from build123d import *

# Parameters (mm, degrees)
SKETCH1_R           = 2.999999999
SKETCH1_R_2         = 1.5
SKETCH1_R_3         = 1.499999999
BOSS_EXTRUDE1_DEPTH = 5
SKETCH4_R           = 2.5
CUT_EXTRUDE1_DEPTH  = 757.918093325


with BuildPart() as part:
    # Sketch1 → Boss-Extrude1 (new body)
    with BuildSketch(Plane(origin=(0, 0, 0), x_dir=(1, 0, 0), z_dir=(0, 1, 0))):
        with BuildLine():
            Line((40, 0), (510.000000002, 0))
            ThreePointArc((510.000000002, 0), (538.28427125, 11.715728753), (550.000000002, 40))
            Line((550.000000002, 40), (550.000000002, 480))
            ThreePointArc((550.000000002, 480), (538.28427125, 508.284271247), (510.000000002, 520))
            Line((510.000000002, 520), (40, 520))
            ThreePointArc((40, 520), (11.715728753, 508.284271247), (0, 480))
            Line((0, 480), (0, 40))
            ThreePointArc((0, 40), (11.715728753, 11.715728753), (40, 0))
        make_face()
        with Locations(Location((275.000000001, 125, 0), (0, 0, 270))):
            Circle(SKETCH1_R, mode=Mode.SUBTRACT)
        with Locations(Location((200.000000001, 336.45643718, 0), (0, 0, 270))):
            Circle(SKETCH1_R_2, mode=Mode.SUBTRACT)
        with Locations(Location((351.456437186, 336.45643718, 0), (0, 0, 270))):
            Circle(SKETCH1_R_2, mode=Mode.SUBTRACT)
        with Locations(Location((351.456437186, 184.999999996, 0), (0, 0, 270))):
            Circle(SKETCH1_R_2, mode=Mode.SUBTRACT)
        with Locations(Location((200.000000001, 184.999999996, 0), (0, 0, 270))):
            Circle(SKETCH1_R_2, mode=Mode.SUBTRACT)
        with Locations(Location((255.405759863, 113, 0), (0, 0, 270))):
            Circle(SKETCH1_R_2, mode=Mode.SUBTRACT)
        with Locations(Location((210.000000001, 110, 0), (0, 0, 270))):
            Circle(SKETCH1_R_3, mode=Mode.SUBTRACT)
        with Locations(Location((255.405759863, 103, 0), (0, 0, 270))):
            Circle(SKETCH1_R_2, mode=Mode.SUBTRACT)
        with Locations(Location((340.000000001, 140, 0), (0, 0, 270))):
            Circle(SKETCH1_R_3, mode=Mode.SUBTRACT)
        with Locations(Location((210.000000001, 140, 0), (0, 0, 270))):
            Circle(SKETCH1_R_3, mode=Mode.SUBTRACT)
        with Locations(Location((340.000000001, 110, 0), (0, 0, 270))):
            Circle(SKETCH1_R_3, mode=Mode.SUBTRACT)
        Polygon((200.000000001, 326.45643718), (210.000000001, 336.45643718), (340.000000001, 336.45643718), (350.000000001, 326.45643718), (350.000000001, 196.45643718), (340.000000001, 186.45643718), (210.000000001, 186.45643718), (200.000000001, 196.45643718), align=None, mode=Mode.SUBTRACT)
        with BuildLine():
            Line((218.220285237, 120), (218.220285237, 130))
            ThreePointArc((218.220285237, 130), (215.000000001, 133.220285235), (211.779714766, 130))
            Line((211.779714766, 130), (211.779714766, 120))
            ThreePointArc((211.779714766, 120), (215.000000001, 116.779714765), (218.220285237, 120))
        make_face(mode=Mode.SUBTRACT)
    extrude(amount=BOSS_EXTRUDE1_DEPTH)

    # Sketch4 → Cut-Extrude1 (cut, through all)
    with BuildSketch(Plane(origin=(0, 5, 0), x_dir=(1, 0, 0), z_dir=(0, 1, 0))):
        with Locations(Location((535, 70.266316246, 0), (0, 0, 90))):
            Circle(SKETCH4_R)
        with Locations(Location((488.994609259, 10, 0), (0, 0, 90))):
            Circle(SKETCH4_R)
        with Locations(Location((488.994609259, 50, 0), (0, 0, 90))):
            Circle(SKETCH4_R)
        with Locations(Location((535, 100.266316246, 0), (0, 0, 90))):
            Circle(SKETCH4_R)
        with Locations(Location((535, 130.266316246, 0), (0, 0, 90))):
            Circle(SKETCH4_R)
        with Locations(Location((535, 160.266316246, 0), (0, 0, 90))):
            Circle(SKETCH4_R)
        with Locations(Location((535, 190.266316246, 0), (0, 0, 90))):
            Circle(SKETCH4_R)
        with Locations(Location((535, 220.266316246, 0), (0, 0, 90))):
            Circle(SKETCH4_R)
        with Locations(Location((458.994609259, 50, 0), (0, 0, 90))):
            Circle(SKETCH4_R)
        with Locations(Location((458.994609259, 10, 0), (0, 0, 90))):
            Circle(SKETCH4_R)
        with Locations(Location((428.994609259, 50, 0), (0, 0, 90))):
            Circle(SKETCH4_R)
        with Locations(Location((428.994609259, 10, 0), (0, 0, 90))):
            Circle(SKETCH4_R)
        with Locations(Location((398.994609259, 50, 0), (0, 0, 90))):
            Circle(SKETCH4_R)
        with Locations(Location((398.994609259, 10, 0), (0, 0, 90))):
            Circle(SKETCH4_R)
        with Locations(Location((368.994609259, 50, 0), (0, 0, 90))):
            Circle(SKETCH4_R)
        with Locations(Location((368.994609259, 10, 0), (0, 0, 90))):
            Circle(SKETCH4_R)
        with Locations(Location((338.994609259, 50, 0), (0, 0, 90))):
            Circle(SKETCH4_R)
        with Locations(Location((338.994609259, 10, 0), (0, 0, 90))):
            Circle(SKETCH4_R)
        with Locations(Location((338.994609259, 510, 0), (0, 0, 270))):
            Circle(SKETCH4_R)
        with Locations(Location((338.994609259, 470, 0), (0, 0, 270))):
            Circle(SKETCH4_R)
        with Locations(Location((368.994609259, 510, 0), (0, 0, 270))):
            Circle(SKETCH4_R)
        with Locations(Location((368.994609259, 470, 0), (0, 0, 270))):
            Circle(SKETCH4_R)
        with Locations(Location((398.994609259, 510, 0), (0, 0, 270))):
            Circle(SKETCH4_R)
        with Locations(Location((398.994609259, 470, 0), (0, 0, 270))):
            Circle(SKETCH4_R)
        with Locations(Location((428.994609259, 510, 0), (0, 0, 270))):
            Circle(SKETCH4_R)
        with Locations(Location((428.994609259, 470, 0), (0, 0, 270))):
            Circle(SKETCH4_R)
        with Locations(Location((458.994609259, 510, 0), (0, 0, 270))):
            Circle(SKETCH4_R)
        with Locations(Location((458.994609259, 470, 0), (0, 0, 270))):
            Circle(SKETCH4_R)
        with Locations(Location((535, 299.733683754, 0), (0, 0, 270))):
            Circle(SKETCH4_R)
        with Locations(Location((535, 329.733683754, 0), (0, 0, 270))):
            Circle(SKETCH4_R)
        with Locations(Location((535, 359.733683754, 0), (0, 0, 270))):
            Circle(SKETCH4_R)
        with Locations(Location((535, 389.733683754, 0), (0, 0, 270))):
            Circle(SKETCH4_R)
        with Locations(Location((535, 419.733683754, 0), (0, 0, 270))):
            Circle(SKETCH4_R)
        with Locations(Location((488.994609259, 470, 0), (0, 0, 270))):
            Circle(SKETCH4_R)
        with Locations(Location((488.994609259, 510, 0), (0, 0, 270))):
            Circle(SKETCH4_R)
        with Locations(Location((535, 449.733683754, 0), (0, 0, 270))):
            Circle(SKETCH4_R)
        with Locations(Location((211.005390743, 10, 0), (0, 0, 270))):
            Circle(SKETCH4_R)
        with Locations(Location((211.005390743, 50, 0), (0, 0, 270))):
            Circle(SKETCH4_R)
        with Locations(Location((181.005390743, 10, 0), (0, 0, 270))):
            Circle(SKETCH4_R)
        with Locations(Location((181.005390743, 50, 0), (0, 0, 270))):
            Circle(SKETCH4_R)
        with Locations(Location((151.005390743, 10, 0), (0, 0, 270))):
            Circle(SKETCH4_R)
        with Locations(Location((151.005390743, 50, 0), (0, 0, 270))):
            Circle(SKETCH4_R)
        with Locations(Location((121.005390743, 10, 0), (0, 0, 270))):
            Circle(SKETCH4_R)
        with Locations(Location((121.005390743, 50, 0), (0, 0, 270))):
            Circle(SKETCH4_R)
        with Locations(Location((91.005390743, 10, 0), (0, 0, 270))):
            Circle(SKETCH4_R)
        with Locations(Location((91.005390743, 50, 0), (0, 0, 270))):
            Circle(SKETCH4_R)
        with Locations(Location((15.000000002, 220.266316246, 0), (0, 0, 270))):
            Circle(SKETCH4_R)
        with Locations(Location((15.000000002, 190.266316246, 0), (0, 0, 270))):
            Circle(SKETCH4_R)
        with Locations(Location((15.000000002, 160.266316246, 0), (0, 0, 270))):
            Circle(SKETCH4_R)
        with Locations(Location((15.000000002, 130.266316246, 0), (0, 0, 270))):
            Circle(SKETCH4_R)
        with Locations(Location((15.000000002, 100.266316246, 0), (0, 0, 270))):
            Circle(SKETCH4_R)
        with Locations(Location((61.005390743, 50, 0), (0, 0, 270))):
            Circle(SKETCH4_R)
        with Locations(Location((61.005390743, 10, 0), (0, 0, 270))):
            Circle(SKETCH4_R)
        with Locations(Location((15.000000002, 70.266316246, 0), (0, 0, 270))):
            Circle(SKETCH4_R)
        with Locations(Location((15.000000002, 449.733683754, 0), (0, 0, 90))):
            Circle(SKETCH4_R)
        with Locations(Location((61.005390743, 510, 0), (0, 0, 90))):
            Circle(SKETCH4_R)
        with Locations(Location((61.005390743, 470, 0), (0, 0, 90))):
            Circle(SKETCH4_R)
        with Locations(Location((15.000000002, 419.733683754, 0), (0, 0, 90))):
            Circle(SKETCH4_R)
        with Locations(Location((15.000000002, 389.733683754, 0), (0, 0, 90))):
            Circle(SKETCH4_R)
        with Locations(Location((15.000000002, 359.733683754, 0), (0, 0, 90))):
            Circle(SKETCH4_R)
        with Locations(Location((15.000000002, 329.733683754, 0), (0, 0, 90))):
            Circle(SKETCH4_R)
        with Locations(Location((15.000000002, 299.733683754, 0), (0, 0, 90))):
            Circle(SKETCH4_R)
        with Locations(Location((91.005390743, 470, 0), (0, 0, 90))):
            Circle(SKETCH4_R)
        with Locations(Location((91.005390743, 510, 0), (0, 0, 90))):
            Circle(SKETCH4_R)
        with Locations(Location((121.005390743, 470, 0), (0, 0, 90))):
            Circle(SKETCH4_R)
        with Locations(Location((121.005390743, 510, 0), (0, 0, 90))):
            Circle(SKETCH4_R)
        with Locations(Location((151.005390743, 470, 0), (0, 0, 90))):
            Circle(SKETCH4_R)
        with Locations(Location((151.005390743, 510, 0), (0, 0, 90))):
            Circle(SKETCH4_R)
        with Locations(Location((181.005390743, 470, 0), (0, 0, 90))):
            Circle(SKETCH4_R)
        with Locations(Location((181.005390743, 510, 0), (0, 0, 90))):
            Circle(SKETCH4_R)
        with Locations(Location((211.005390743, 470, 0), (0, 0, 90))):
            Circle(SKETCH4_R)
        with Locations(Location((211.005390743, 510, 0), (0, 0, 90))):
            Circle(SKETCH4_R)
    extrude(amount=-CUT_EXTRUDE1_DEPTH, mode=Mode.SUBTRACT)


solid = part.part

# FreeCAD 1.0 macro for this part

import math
import FreeCAD as App
import Part
import Sketcher

V = App.Vector
Q = App.Units.Quantity


def add_polygon(sketch, points):
    """Adds a closed chain of lines whose ends are joined by coincident constraints."""
    first, n = sketch.GeometryCount, len(points)
    for a, b in zip(points, points[1:] + points[:1]):
        sketch.addGeometry(Part.LineSegment(App.Vector(*a, 0), App.Vector(*b, 0)), False)
    for i in range(n):
        sketch.addConstraint(Sketcher.Constraint("Coincident", first + i, 2, first + (i + 1) % n, 1))

doc = App.newDocument("Part")
body = doc.addObject("PartDesign::Body", "Body")

sketch1 = body.newObject("Sketcher::SketchObject", "Sketch")
sketch1.AttachmentSupport = (doc.getObject("XZ_Plane"), [""])
sketch1.MapMode = "FlatFace"
sketch1.addGeometry(Part.LineSegment(V(40, 0, 0), V(510, 0, 0)), False)
sketch1.addGeometry(Part.ArcOfCircle(Part.Circle(V(510, -40, 0), V(0, 0, 1), 40), math.radians(0), math.radians(90)), False)
sketch1.addGeometry(Part.LineSegment(V(550, -40, 0), V(550, -480, 0)), False)
sketch1.addGeometry(Part.ArcOfCircle(Part.Circle(V(510, -480, 0), V(0, 0, 1), 40), math.radians(-90), math.radians(0)), False)
sketch1.addGeometry(Part.LineSegment(V(510, -520, 0), V(40, -520, 0)), False)
sketch1.addGeometry(Part.ArcOfCircle(Part.Circle(V(40, -480, 0), V(0, 0, 1), 40), math.radians(-180), math.radians(-90)), False)
sketch1.addGeometry(Part.LineSegment(V(0, -480, 0), V(0, -40, 0)), False)
sketch1.addGeometry(Part.ArcOfCircle(Part.Circle(V(40, -40, 0), V(0, 0, 1), 40), math.radians(90), math.radians(180)), False)
sketch1.addGeometry(Part.Circle(V(210, -110, 0), V(0, 0, 1), 1.5), False)
sketch1.addGeometry(Part.LineSegment(V(218.2, -130, 0), V(218.2, -120, 0)), False)
sketch1.addGeometry(Part.ArcOfCircle(Part.Circle(V(215, -120, 0), V(0, 0, 1), 3.2), math.radians(0), math.radians(180)), False)
sketch1.addGeometry(Part.LineSegment(V(211.8, -120, 0), V(211.8, -130, 0)), False)
sketch1.addGeometry(Part.ArcOfCircle(Part.Circle(V(215, -130, 0), V(0, 0, 1), 3.2), math.radians(180), math.radians(360)), False)
sketch1.addGeometry(Part.Circle(V(210, -140, 0), V(0, 0, 1), 1.5), False)
sketch1.addGeometry(Part.Circle(V(255.4, -103, 0), V(0, 0, 1), 1.5), False)
sketch1.addGeometry(Part.Circle(V(255.4, -113, 0), V(0, 0, 1), 1.5), False)
sketch1.addGeometry(Part.Circle(V(275, -125, 0), V(0, 0, 1), 3), False)
sketch1.addGeometry(Part.Circle(V(200, -185, 0), V(0, 0, 1), 1.5), False)
sketch1.addGeometry(Part.Circle(V(340, -110, 0), V(0, 0, 1), 1.5), False)
sketch1.addGeometry(Part.Circle(V(340, -140, 0), V(0, 0, 1), 1.5), False)
sketch1.addGeometry(Part.Circle(V(351.5, -185, 0), V(0, 0, 1), 1.5), False)
add_polygon(sketch1, [(200, -196.5), (200, -326.5), (210, -336.5), (340, -336.5), (350, -326.5), (350, -196.5), (340, -186.5), (210, -186.5)])
sketch1.addGeometry(Part.Circle(V(200, -336.5, 0), V(0, 0, 1), 1.5), False)
sketch1.addGeometry(Part.Circle(V(351.5, -336.5, 0), V(0, 0, 1), 1.5), False)
sketch1.addConstraint([
    Sketcher.Constraint("Tangent", 0, 2, 1, 2),
    Sketcher.Constraint("Tangent", 1, 1, 2, 1),
    Sketcher.Constraint("Tangent", 2, 2, 3, 2),
    Sketcher.Constraint("Tangent", 3, 1, 4, 1),
    Sketcher.Constraint("Tangent", 4, 2, 5, 2),
    Sketcher.Constraint("Tangent", 5, 1, 6, 1),
    Sketcher.Constraint("Tangent", 6, 2, 7, 2),
    Sketcher.Constraint("Tangent", 7, 1, 0, 1),
    Sketcher.Constraint("Tangent", 9, 2, 10, 1),
    Sketcher.Constraint("Tangent", 10, 2, 11, 1),
    Sketcher.Constraint("Tangent", 11, 2, 12, 1),
    Sketcher.Constraint("Tangent", 12, 2, 9, 1),
    Sketcher.Constraint("Horizontal", 0),
    Sketcher.Constraint("Vertical", 2),
    Sketcher.Constraint("Horizontal", 4),
    Sketcher.Constraint("Vertical", 6),
    Sketcher.Constraint("Vertical", 9),
    Sketcher.Constraint("Vertical", 11),
    Sketcher.Constraint("Vertical", 21),
    Sketcher.Constraint("Horizontal", 23),
    Sketcher.Constraint("Vertical", 25),
    Sketcher.Constraint("Horizontal", 27),
    Sketcher.Constraint("Equal", 1, 3),
    Sketcher.Constraint("Equal", 3, 5),
    Sketcher.Constraint("Equal", 5, 7),
    Sketcher.Constraint("Equal", 8, 13),
    Sketcher.Constraint("Equal", 13, 14),
    Sketcher.Constraint("Equal", 14, 15),
    Sketcher.Constraint("Equal", 15, 17),
    Sketcher.Constraint("Equal", 17, 18),
    Sketcher.Constraint("Equal", 18, 19),
    Sketcher.Constraint("Equal", 19, 20),
    Sketcher.Constraint("Equal", 20, 29),
    Sketcher.Constraint("Equal", 29, 30),
    Sketcher.Constraint("PointOnObject", 0, 2, -1),
    Sketcher.Constraint("PointOnObject", 5, 1, -2),
    Sketcher.Constraint("Perpendicular", 22, 24),
    Sketcher.Constraint("Perpendicular", 24, 26),
    Sketcher.Constraint("Perpendicular", 26, 28),
    Sketcher.Constraint("Horizontal", 8, 3, 18, 3),
    Sketcher.Constraint("Horizontal", 13, 3, 19, 3),
    Sketcher.Constraint("Horizontal", 17, 3, 20, 3),
    Sketcher.Constraint("Horizontal", 29, 3, 30, 3),
    Sketcher.Constraint("Horizontal", 30, 3, 22, 2),
    Sketcher.Constraint("Horizontal", 21, 2, 24, 2),
    Sketcher.Constraint("Horizontal", 25, 2, 28, 2),
    Sketcher.Constraint("Vertical", 8, 3, 13, 3),
    Sketcher.Constraint("Vertical", 14, 3, 15, 3),
    Sketcher.Constraint("Vertical", 18, 3, 19, 3),
    Sketcher.Constraint("Vertical", 17, 3, 29, 3),
    Sketcher.Constraint("Vertical", 20, 3, 30, 3),
    Sketcher.Constraint("Vertical", 29, 3, 21, 2),
    Sketcher.Constraint("Vertical", 13, 3, 22, 2),
    Sketcher.Constraint("Vertical", 19, 3, 23, 2),
    Sketcher.Constraint("Vertical", 23, 2, 26, 2),
    Sketcher.Constraint("Vertical", 22, 2, 27, 2),
    Sketcher.Constraint("Equal", 27, 21),
    Sketcher.Constraint("Diameter", 8, Q("3 mm")),
    Sketcher.Constraint("Diameter", 16, Q("6 mm")),
    Sketcher.Constraint("Radius", 1, Q("40 mm")),
    Sketcher.Constraint("DistanceX", 0, 1, 0, 2, Q("470 mm")),
    Sketcher.Constraint("DistanceX", 23, 1, 23, 2, Q("130 mm")),
    Sketcher.Constraint("DistanceY", 2, 2, 2, 1, Q("440 mm")),
    Sketcher.Constraint("DistanceY", 9, 1, 9, 2, Q("10 mm")),
    Sketcher.Constraint("DistanceX", -1, 1, 8, 3, Q("210 mm")),
    Sketcher.Constraint("DistanceY", 8, 3, -1, 1, Q("110 mm")),
    Sketcher.Constraint("DistanceX", -1, 1, 10, 3, Q("215 mm")),
    Sketcher.Constraint("DistanceY", 10, 3, -1, 1, Q("120 mm")),
    Sketcher.Constraint("DistanceY", 13, 3, -1, 1, Q("140 mm")),
    Sketcher.Constraint("DistanceY", 14, 3, -1, 1, Q("103 mm")),
    Sketcher.Constraint("DistanceY", 15, 3, -1, 1, Q("113 mm")),
    Sketcher.Constraint("DistanceX", -1, 1, 16, 3, Q("275 mm")),
    Sketcher.Constraint("DistanceY", 16, 3, -1, 1, Q("125 mm")),
    Sketcher.Constraint("DistanceX", -1, 1, 17, 3, Q("200 mm")),
    Sketcher.Constraint("DistanceY", 17, 3, -1, 1, Q("185 mm")),
    Sketcher.Constraint("Radius", 10, Q("3.220285 mm")),
    Sketcher.Constraint("DistanceX", -1, 1, 14, 3, Q("255.40576 mm")),
    Sketcher.Constraint("DistanceX", -1, 1, 20, 3, Q("351.456437 mm")),
    Sketcher.Constraint("DistanceY", 29, 3, -1, 1, Q("336.456437 mm")),
])
pad1 = body.newObject("PartDesign::Pad", "Pad")
pad1.Profile = sketch1
pad1.Length = 5
pad1.Reversed = True

sketch2 = body.newObject("Sketcher::SketchObject", "Sketch001")
sketch2.AttachmentSupport = (doc.getObject("XZ_Plane"), [""])
sketch2.MapMode = "FlatFace"
sketch2.AttachmentOffset = App.Placement(V(0, 0, -5), App.Rotation())
sketch2.addGeometry([
    Part.Circle(V(535, -70.3, 0), V(0, 0, 1), 2.5),
    Part.Circle(V(489, -10, 0), V(0, 0, 1), 2.5),
    Part.Circle(V(489, -50, 0), V(0, 0, 1), 2.5),
    Part.Circle(V(535, -100.3, 0), V(0, 0, 1), 2.5),
    Part.Circle(V(535, -130.3, 0), V(0, 0, 1), 2.5),
    Part.Circle(V(535, -160.3, 0), V(0, 0, 1), 2.5),
    Part.Circle(V(535, -190.3, 0), V(0, 0, 1), 2.5),
    Part.Circle(V(535, -220.3, 0), V(0, 0, 1), 2.5),
    Part.Circle(V(459, -50, 0), V(0, 0, 1), 2.5),
    Part.Circle(V(459, -10, 0), V(0, 0, 1), 2.5),
    Part.Circle(V(429, -50, 0), V(0, 0, 1), 2.5),
    Part.Circle(V(429, -10, 0), V(0, 0, 1), 2.5),
    Part.Circle(V(399, -50, 0), V(0, 0, 1), 2.5),
    Part.Circle(V(399, -10, 0), V(0, 0, 1), 2.5),
    Part.Circle(V(369, -50, 0), V(0, 0, 1), 2.5),
    Part.Circle(V(369, -10, 0), V(0, 0, 1), 2.5),
    Part.Circle(V(339, -50, 0), V(0, 0, 1), 2.5),
    Part.Circle(V(339, -10, 0), V(0, 0, 1), 2.5),
    Part.Circle(V(339, -510, 0), V(0, 0, 1), 2.5),
    Part.Circle(V(339, -470, 0), V(0, 0, 1), 2.5),
    Part.Circle(V(369, -510, 0), V(0, 0, 1), 2.5),
    Part.Circle(V(369, -470, 0), V(0, 0, 1), 2.5),
    Part.Circle(V(399, -510, 0), V(0, 0, 1), 2.5),
    Part.Circle(V(399, -470, 0), V(0, 0, 1), 2.5),
    Part.Circle(V(429, -510, 0), V(0, 0, 1), 2.5),
    Part.Circle(V(429, -470, 0), V(0, 0, 1), 2.5),
    Part.Circle(V(459, -510, 0), V(0, 0, 1), 2.5),
    Part.Circle(V(459, -470, 0), V(0, 0, 1), 2.5),
    Part.Circle(V(535, -299.7, 0), V(0, 0, 1), 2.5),
    Part.Circle(V(535, -329.7, 0), V(0, 0, 1), 2.5),
    Part.Circle(V(535, -359.7, 0), V(0, 0, 1), 2.5),
    Part.Circle(V(535, -389.7, 0), V(0, 0, 1), 2.5),
    Part.Circle(V(535, -419.7, 0), V(0, 0, 1), 2.5),
    Part.Circle(V(489, -470, 0), V(0, 0, 1), 2.5),
    Part.Circle(V(489, -510, 0), V(0, 0, 1), 2.5),
    Part.Circle(V(535, -449.7, 0), V(0, 0, 1), 2.5),
    Part.Circle(V(211, -10, 0), V(0, 0, 1), 2.5),
    Part.Circle(V(211, -50, 0), V(0, 0, 1), 2.5),
    Part.Circle(V(181, -10, 0), V(0, 0, 1), 2.5),
    Part.Circle(V(181, -50, 0), V(0, 0, 1), 2.5),
    Part.Circle(V(151, -10, 0), V(0, 0, 1), 2.5),
    Part.Circle(V(151, -50, 0), V(0, 0, 1), 2.5),
    Part.Circle(V(121, -10, 0), V(0, 0, 1), 2.5),
    Part.Circle(V(121, -50, 0), V(0, 0, 1), 2.5),
    Part.Circle(V(91, -10, 0), V(0, 0, 1), 2.5),
    Part.Circle(V(91, -50, 0), V(0, 0, 1), 2.5),
    Part.Circle(V(15, -220.3, 0), V(0, 0, 1), 2.5),
    Part.Circle(V(15, -190.3, 0), V(0, 0, 1), 2.5),
    Part.Circle(V(15, -160.3, 0), V(0, 0, 1), 2.5),
    Part.Circle(V(15, -130.3, 0), V(0, 0, 1), 2.5),
    Part.Circle(V(15, -100.3, 0), V(0, 0, 1), 2.5),
    Part.Circle(V(61, -50, 0), V(0, 0, 1), 2.5),
    Part.Circle(V(61, -10, 0), V(0, 0, 1), 2.5),
    Part.Circle(V(15, -70.3, 0), V(0, 0, 1), 2.5),
    Part.Circle(V(15, -449.7, 0), V(0, 0, 1), 2.5),
    Part.Circle(V(61, -510, 0), V(0, 0, 1), 2.5),
    Part.Circle(V(61, -470, 0), V(0, 0, 1), 2.5),
    Part.Circle(V(15, -419.7, 0), V(0, 0, 1), 2.5),
    Part.Circle(V(15, -389.7, 0), V(0, 0, 1), 2.5),
    Part.Circle(V(15, -359.7, 0), V(0, 0, 1), 2.5),
    Part.Circle(V(15, -329.7, 0), V(0, 0, 1), 2.5),
    Part.Circle(V(15, -299.7, 0), V(0, 0, 1), 2.5),
    Part.Circle(V(91, -470, 0), V(0, 0, 1), 2.5),
    Part.Circle(V(91, -510, 0), V(0, 0, 1), 2.5),
    Part.Circle(V(121, -470, 0), V(0, 0, 1), 2.5),
    Part.Circle(V(121, -510, 0), V(0, 0, 1), 2.5),
    Part.Circle(V(151, -470, 0), V(0, 0, 1), 2.5),
    Part.Circle(V(151, -510, 0), V(0, 0, 1), 2.5),
    Part.Circle(V(181, -470, 0), V(0, 0, 1), 2.5),
    Part.Circle(V(181, -510, 0), V(0, 0, 1), 2.5),
    Part.Circle(V(211, -470, 0), V(0, 0, 1), 2.5),
    Part.Circle(V(211, -510, 0), V(0, 0, 1), 2.5),
], False)
sketch2.addConstraint([
    Sketcher.Constraint("Equal", 0, 1),
    Sketcher.Constraint("Equal", 1, 2),
    Sketcher.Constraint("Equal", 2, 3),
    Sketcher.Constraint("Equal", 3, 4),
    Sketcher.Constraint("Equal", 4, 5),
    Sketcher.Constraint("Equal", 5, 6),
    Sketcher.Constraint("Equal", 6, 7),
    Sketcher.Constraint("Equal", 7, 8),
    Sketcher.Constraint("Equal", 8, 9),
    Sketcher.Constraint("Equal", 9, 10),
    Sketcher.Constraint("Equal", 10, 11),
    Sketcher.Constraint("Equal", 11, 12),
    Sketcher.Constraint("Equal", 12, 13),
    Sketcher.Constraint("Equal", 13, 14),
    Sketcher.Constraint("Equal", 14, 15),
    Sketcher.Constraint("Equal", 15, 16),
    Sketcher.Constraint("Equal", 16, 17),
    Sketcher.Constraint("Equal", 17, 18),
    Sketcher.Constraint("Equal", 18, 19),
    Sketcher.Constraint("Equal", 19, 20),
    Sketcher.Constraint("Equal", 20, 21),
    Sketcher.Constraint("Equal", 21, 22),
    Sketcher.Constraint("Equal", 22, 23),
    Sketcher.Constraint("Equal", 23, 24),
    Sketcher.Constraint("Equal", 24, 25),
    Sketcher.Constraint("Equal", 25, 26),
    Sketcher.Constraint("Equal", 26, 27),
    Sketcher.Constraint("Equal", 27, 28),
    Sketcher.Constraint("Equal", 28, 29),
    Sketcher.Constraint("Equal", 29, 30),
    Sketcher.Constraint("Equal", 30, 31),
    Sketcher.Constraint("Equal", 31, 32),
    Sketcher.Constraint("Equal", 32, 33),
    Sketcher.Constraint("Equal", 33, 34),
    Sketcher.Constraint("Equal", 34, 35),
    Sketcher.Constraint("Equal", 35, 36),
    Sketcher.Constraint("Equal", 36, 37),
    Sketcher.Constraint("Equal", 37, 38),
    Sketcher.Constraint("Equal", 38, 39),
    Sketcher.Constraint("Equal", 39, 40),
    Sketcher.Constraint("Equal", 40, 41),
    Sketcher.Constraint("Equal", 41, 42),
    Sketcher.Constraint("Equal", 42, 43),
    Sketcher.Constraint("Equal", 43, 44),
    Sketcher.Constraint("Equal", 44, 45),
    Sketcher.Constraint("Equal", 45, 46),
    Sketcher.Constraint("Equal", 46, 47),
    Sketcher.Constraint("Equal", 47, 48),
    Sketcher.Constraint("Equal", 48, 49),
    Sketcher.Constraint("Equal", 49, 50),
    Sketcher.Constraint("Equal", 50, 51),
    Sketcher.Constraint("Equal", 51, 52),
    Sketcher.Constraint("Equal", 52, 53),
    Sketcher.Constraint("Equal", 53, 54),
    Sketcher.Constraint("Equal", 54, 55),
    Sketcher.Constraint("Equal", 55, 56),
    Sketcher.Constraint("Equal", 56, 57),
    Sketcher.Constraint("Equal", 57, 58),
    Sketcher.Constraint("Equal", 58, 59),
    Sketcher.Constraint("Equal", 59, 60),
    Sketcher.Constraint("Equal", 60, 61),
    Sketcher.Constraint("Equal", 61, 62),
    Sketcher.Constraint("Equal", 62, 63),
    Sketcher.Constraint("Equal", 63, 64),
    Sketcher.Constraint("Equal", 64, 65),
    Sketcher.Constraint("Equal", 65, 66),
    Sketcher.Constraint("Equal", 66, 67),
    Sketcher.Constraint("Equal", 67, 68),
    Sketcher.Constraint("Equal", 68, 69),
    Sketcher.Constraint("Equal", 69, 70),
    Sketcher.Constraint("Equal", 70, 71),
    Sketcher.Constraint("Horizontal", 2, 3, 8, 3),
    Sketcher.Constraint("Horizontal", 1, 3, 9, 3),
    Sketcher.Constraint("Horizontal", 8, 3, 10, 3),
    Sketcher.Constraint("Horizontal", 9, 3, 11, 3),
    Sketcher.Constraint("Horizontal", 10, 3, 12, 3),
    Sketcher.Constraint("Horizontal", 11, 3, 13, 3),
    Sketcher.Constraint("Horizontal", 12, 3, 14, 3),
    Sketcher.Constraint("Horizontal", 13, 3, 15, 3),
    Sketcher.Constraint("Horizontal", 14, 3, 16, 3),
    Sketcher.Constraint("Horizontal", 15, 3, 17, 3),
    Sketcher.Constraint("Horizontal", 18, 3, 20, 3),
    Sketcher.Constraint("Horizontal", 19, 3, 21, 3),
    Sketcher.Constraint("Horizontal", 20, 3, 22, 3),
    Sketcher.Constraint("Horizontal", 21, 3, 23, 3),
    Sketcher.Constraint("Horizontal", 22, 3, 24, 3),
    Sketcher.Constraint("Horizontal", 23, 3, 25, 3),
    Sketcher.Constraint("Horizontal", 24, 3, 26, 3),
    Sketcher.Constraint("Horizontal", 25, 3, 27, 3),
    Sketcher.Constraint("Horizontal", 27, 3, 33, 3),
    Sketcher.Constraint("Horizontal", 26, 3, 34, 3),
    Sketcher.Constraint("Horizontal", 17, 3, 36, 3),
    Sketcher.Constraint("Horizontal", 16, 3, 37, 3),
    Sketcher.Constraint("Horizontal", 36, 3, 38, 3),
    Sketcher.Constraint("Horizontal", 37, 3, 39, 3),
    Sketcher.Constraint("Horizontal", 38, 3, 40, 3),
    Sketcher.Constraint("Horizontal", 39, 3, 41, 3),
    Sketcher.Constraint("Horizontal", 40, 3, 42, 3),
    Sketcher.Constraint("Horizontal", 41, 3, 43, 3),
    Sketcher.Constraint("Horizontal", 42, 3, 44, 3),
    Sketcher.Constraint("Horizontal", 43, 3, 45, 3),
    Sketcher.Constraint("Horizontal", 7, 3, 46, 3),
    Sketcher.Constraint("Horizontal", 6, 3, 47, 3),
    Sketcher.Constraint("Horizontal", 5, 3, 48, 3),
    Sketcher.Constraint("Horizontal", 4, 3, 49, 3),
    Sketcher.Constraint("Horizontal", 3, 3, 50, 3),
    Sketcher.Constraint("Horizontal", 45, 3, 51, 3),
    Sketcher.Constraint("Horizontal", 44, 3, 52, 3),
    Sketcher.Constraint("Horizontal", 0, 3, 53, 3),
    Sketcher.Constraint("Horizontal", 35, 3, 54, 3),
    Sketcher.Constraint("Horizontal", 34, 3, 55, 3),
    Sketcher.Constraint("Horizontal", 33, 3, 56, 3),
    Sketcher.Constraint("Horizontal", 32, 3, 57, 3),
    Sketcher.Constraint("Horizontal", 31, 3, 58, 3),
    Sketcher.Constraint("Horizontal", 30, 3, 59, 3),
    Sketcher.Constraint("Horizontal", 29, 3, 60, 3),
    Sketcher.Constraint("Horizontal", 28, 3, 61, 3),
    Sketcher.Constraint("Horizontal", 56, 3, 62, 3),
    Sketcher.Constraint("Horizontal", 55, 3, 63, 3),
    Sketcher.Constraint("Horizontal", 62, 3, 64, 3),
    Sketcher.Constraint("Horizontal", 63, 3, 65, 3),
    Sketcher.Constraint("Horizontal", 64, 3, 66, 3),
    Sketcher.Constraint("Horizontal", 65, 3, 67, 3),
    Sketcher.Constraint("Horizontal", 66, 3, 68, 3),
    Sketcher.Constraint("Horizontal", 67, 3, 69, 3),
    Sketcher.Constraint("Horizontal", 68, 3, 70, 3),
    Sketcher.Constraint("Horizontal", 69, 3, 71, 3),
    Sketcher.Constraint("Vertical", 1, 3, 2, 3),
    Sketcher.Constraint("Vertical", 0, 3, 3, 3),
    Sketcher.Constraint("Vertical", 3, 3, 4, 3),
    Sketcher.Constraint("Vertical", 4, 3, 5, 3),
    Sketcher.Constraint("Vertical", 5, 3, 6, 3),
    Sketcher.Constraint("Vertical", 6, 3, 7, 3),
    Sketcher.Constraint("Vertical", 8, 3, 9, 3),
    Sketcher.Constraint("Vertical", 10, 3, 11, 3),
    Sketcher.Constraint("Vertical", 12, 3, 13, 3),
    Sketcher.Constraint("Vertical", 14, 3, 15, 3),
    Sketcher.Constraint("Vertical", 16, 3, 17, 3),
    Sketcher.Constraint("Vertical", 17, 3, 18, 3),
    Sketcher.Constraint("Vertical", 18, 3, 19, 3),
    Sketcher.Constraint("Vertical", 15, 3, 20, 3),
    Sketcher.Constraint("Vertical", 20, 3, 21, 3),
    Sketcher.Constraint("Vertical", 13, 3, 22, 3),
    Sketcher.Constraint("Vertical", 22, 3, 23, 3),
    Sketcher.Constraint("Vertical", 11, 3, 24, 3),
    Sketcher.Constraint("Vertical", 24, 3, 25, 3),
    Sketcher.Constraint("Vertical", 9, 3, 26, 3),
    Sketcher.Constraint("Vertical", 26, 3, 27, 3),
    Sketcher.Constraint("Vertical", 7, 3, 28, 3),
    Sketcher.Constraint("Vertical", 28, 3, 29, 3),
    Sketcher.Constraint("Vertical", 29, 3, 30, 3),
    Sketcher.Constraint("Vertical", 30, 3, 31, 3),
    Sketcher.Constraint("Vertical", 31, 3, 32, 3),
    Sketcher.Constraint("Vertical", 2, 3, 33, 3),
    Sketcher.Constraint("Vertical", 33, 3, 34, 3),
    Sketcher.Constraint("Vertical", 32, 3, 35, 3),
    Sketcher.Constraint("Vertical", 36, 3, 37, 3),
    Sketcher.Constraint("Vertical", 38, 3, 39, 3),
    Sketcher.Constraint("Vertical", 40, 3, 41, 3),
    Sketcher.Constraint("Vertical", 42, 3, 43, 3),
    Sketcher.Constraint("Vertical", 44, 3, 45, 3),
    Sketcher.Constraint("Vertical", 46, 3, 47, 3),
    Sketcher.Constraint("Vertical", 47, 3, 48, 3),
    Sketcher.Constraint("Vertical", 48, 3, 49, 3),
    Sketcher.Constraint("Vertical", 49, 3, 50, 3),
    Sketcher.Constraint("Vertical", 51, 3, 52, 3),
    Sketcher.Constraint("Vertical", 50, 3, 53, 3),
    Sketcher.Constraint("Vertical", 53, 3, 54, 3),
    Sketcher.Constraint("Vertical", 52, 3, 55, 3),
    Sketcher.Constraint("Vertical", 55, 3, 56, 3),
    Sketcher.Constraint("Vertical", 54, 3, 57, 3),
    Sketcher.Constraint("Vertical", 57, 3, 58, 3),
    Sketcher.Constraint("Vertical", 58, 3, 59, 3),
    Sketcher.Constraint("Vertical", 59, 3, 60, 3),
    Sketcher.Constraint("Vertical", 60, 3, 61, 3),
    Sketcher.Constraint("Vertical", 45, 3, 62, 3),
    Sketcher.Constraint("Vertical", 62, 3, 63, 3),
    Sketcher.Constraint("Vertical", 43, 3, 64, 3),
    Sketcher.Constraint("Vertical", 64, 3, 65, 3),
    Sketcher.Constraint("Vertical", 41, 3, 66, 3),
    Sketcher.Constraint("Vertical", 66, 3, 67, 3),
    Sketcher.Constraint("Vertical", 39, 3, 68, 3),
    Sketcher.Constraint("Vertical", 68, 3, 69, 3),
    Sketcher.Constraint("Vertical", 37, 3, 70, 3),
    Sketcher.Constraint("Vertical", 70, 3, 71, 3),
    Sketcher.Constraint("Diameter", 0, Q("5 mm")),
    Sketcher.Constraint("DistanceX", -1, 1, 0, 3, Q("535 mm")),
    Sketcher.Constraint("DistanceY", 1, 3, -1, 1, Q("10 mm")),
    Sketcher.Constraint("DistanceY", 2, 3, -1, 1, Q("50 mm")),
    Sketcher.Constraint("DistanceY", 18, 3, -1, 1, Q("510 mm")),
    Sketcher.Constraint("DistanceY", 19, 3, -1, 1, Q("470 mm")),
    Sketcher.Constraint("DistanceX", -1, 1, 46, 3, Q("15 mm")),
    Sketcher.Constraint("DistanceX", -1, 1, 1, 3, Q("488.994609 mm")),
    Sketcher.Constraint("DistanceX", -1, 1, 8, 3, Q("458.994609 mm")),
    Sketcher.Constraint("DistanceX", -1, 1, 10, 3, Q("428.994609 mm")),
    Sketcher.Constraint("DistanceX", -1, 1, 12, 3, Q("398.994609 mm")),
    Sketcher.Constraint("DistanceX", -1, 1, 14, 3, Q("368.994609 mm")),
    Sketcher.Constraint("DistanceX", -1, 1, 16, 3, Q("338.994609 mm")),
    Sketcher.Constraint("DistanceX", -1, 1, 36, 3, Q("211.005391 mm")),
    Sketcher.Constraint("DistanceX", -1, 1, 38, 3, Q("181.005391 mm")),
    Sketcher.Constraint("DistanceX", -1, 1, 40, 3, Q("151.005391 mm")),
    Sketcher.Constraint("DistanceX", -1, 1, 42, 3, Q("121.005391 mm")),
    Sketcher.Constraint("DistanceX", -1, 1, 44, 3, Q("91.005391 mm")),
    Sketcher.Constraint("DistanceX", -1, 1, 51, 3, Q("61.005391 mm")),
    Sketcher.Constraint("DistanceY", 0, 3, -1, 1, Q("70.266316 mm")),
    Sketcher.Constraint("DistanceY", 3, 3, -1, 1, Q("100.266316 mm")),
    Sketcher.Constraint("DistanceY", 4, 3, -1, 1, Q("130.266316 mm")),
    Sketcher.Constraint("DistanceY", 5, 3, -1, 1, Q("160.266316 mm")),
    Sketcher.Constraint("DistanceY", 6, 3, -1, 1, Q("190.266316 mm")),
    Sketcher.Constraint("DistanceY", 7, 3, -1, 1, Q("220.266316 mm")),
    Sketcher.Constraint("DistanceY", 28, 3, -1, 1, Q("299.733684 mm")),
    Sketcher.Constraint("DistanceY", 29, 3, -1, 1, Q("329.733684 mm")),
    Sketcher.Constraint("DistanceY", 30, 3, -1, 1, Q("359.733684 mm")),
    Sketcher.Constraint("DistanceY", 31, 3, -1, 1, Q("389.733684 mm")),
    Sketcher.Constraint("DistanceY", 32, 3, -1, 1, Q("419.733684 mm")),
    Sketcher.Constraint("DistanceY", 35, 3, -1, 1, Q("449.733684 mm")),
])
pocket1 = body.newObject("PartDesign::Pocket", "Pocket")
pocket1.Profile = sketch2
pocket1.Type = "ThroughAll"
pocket1.Reversed = True

doc.recompute()
